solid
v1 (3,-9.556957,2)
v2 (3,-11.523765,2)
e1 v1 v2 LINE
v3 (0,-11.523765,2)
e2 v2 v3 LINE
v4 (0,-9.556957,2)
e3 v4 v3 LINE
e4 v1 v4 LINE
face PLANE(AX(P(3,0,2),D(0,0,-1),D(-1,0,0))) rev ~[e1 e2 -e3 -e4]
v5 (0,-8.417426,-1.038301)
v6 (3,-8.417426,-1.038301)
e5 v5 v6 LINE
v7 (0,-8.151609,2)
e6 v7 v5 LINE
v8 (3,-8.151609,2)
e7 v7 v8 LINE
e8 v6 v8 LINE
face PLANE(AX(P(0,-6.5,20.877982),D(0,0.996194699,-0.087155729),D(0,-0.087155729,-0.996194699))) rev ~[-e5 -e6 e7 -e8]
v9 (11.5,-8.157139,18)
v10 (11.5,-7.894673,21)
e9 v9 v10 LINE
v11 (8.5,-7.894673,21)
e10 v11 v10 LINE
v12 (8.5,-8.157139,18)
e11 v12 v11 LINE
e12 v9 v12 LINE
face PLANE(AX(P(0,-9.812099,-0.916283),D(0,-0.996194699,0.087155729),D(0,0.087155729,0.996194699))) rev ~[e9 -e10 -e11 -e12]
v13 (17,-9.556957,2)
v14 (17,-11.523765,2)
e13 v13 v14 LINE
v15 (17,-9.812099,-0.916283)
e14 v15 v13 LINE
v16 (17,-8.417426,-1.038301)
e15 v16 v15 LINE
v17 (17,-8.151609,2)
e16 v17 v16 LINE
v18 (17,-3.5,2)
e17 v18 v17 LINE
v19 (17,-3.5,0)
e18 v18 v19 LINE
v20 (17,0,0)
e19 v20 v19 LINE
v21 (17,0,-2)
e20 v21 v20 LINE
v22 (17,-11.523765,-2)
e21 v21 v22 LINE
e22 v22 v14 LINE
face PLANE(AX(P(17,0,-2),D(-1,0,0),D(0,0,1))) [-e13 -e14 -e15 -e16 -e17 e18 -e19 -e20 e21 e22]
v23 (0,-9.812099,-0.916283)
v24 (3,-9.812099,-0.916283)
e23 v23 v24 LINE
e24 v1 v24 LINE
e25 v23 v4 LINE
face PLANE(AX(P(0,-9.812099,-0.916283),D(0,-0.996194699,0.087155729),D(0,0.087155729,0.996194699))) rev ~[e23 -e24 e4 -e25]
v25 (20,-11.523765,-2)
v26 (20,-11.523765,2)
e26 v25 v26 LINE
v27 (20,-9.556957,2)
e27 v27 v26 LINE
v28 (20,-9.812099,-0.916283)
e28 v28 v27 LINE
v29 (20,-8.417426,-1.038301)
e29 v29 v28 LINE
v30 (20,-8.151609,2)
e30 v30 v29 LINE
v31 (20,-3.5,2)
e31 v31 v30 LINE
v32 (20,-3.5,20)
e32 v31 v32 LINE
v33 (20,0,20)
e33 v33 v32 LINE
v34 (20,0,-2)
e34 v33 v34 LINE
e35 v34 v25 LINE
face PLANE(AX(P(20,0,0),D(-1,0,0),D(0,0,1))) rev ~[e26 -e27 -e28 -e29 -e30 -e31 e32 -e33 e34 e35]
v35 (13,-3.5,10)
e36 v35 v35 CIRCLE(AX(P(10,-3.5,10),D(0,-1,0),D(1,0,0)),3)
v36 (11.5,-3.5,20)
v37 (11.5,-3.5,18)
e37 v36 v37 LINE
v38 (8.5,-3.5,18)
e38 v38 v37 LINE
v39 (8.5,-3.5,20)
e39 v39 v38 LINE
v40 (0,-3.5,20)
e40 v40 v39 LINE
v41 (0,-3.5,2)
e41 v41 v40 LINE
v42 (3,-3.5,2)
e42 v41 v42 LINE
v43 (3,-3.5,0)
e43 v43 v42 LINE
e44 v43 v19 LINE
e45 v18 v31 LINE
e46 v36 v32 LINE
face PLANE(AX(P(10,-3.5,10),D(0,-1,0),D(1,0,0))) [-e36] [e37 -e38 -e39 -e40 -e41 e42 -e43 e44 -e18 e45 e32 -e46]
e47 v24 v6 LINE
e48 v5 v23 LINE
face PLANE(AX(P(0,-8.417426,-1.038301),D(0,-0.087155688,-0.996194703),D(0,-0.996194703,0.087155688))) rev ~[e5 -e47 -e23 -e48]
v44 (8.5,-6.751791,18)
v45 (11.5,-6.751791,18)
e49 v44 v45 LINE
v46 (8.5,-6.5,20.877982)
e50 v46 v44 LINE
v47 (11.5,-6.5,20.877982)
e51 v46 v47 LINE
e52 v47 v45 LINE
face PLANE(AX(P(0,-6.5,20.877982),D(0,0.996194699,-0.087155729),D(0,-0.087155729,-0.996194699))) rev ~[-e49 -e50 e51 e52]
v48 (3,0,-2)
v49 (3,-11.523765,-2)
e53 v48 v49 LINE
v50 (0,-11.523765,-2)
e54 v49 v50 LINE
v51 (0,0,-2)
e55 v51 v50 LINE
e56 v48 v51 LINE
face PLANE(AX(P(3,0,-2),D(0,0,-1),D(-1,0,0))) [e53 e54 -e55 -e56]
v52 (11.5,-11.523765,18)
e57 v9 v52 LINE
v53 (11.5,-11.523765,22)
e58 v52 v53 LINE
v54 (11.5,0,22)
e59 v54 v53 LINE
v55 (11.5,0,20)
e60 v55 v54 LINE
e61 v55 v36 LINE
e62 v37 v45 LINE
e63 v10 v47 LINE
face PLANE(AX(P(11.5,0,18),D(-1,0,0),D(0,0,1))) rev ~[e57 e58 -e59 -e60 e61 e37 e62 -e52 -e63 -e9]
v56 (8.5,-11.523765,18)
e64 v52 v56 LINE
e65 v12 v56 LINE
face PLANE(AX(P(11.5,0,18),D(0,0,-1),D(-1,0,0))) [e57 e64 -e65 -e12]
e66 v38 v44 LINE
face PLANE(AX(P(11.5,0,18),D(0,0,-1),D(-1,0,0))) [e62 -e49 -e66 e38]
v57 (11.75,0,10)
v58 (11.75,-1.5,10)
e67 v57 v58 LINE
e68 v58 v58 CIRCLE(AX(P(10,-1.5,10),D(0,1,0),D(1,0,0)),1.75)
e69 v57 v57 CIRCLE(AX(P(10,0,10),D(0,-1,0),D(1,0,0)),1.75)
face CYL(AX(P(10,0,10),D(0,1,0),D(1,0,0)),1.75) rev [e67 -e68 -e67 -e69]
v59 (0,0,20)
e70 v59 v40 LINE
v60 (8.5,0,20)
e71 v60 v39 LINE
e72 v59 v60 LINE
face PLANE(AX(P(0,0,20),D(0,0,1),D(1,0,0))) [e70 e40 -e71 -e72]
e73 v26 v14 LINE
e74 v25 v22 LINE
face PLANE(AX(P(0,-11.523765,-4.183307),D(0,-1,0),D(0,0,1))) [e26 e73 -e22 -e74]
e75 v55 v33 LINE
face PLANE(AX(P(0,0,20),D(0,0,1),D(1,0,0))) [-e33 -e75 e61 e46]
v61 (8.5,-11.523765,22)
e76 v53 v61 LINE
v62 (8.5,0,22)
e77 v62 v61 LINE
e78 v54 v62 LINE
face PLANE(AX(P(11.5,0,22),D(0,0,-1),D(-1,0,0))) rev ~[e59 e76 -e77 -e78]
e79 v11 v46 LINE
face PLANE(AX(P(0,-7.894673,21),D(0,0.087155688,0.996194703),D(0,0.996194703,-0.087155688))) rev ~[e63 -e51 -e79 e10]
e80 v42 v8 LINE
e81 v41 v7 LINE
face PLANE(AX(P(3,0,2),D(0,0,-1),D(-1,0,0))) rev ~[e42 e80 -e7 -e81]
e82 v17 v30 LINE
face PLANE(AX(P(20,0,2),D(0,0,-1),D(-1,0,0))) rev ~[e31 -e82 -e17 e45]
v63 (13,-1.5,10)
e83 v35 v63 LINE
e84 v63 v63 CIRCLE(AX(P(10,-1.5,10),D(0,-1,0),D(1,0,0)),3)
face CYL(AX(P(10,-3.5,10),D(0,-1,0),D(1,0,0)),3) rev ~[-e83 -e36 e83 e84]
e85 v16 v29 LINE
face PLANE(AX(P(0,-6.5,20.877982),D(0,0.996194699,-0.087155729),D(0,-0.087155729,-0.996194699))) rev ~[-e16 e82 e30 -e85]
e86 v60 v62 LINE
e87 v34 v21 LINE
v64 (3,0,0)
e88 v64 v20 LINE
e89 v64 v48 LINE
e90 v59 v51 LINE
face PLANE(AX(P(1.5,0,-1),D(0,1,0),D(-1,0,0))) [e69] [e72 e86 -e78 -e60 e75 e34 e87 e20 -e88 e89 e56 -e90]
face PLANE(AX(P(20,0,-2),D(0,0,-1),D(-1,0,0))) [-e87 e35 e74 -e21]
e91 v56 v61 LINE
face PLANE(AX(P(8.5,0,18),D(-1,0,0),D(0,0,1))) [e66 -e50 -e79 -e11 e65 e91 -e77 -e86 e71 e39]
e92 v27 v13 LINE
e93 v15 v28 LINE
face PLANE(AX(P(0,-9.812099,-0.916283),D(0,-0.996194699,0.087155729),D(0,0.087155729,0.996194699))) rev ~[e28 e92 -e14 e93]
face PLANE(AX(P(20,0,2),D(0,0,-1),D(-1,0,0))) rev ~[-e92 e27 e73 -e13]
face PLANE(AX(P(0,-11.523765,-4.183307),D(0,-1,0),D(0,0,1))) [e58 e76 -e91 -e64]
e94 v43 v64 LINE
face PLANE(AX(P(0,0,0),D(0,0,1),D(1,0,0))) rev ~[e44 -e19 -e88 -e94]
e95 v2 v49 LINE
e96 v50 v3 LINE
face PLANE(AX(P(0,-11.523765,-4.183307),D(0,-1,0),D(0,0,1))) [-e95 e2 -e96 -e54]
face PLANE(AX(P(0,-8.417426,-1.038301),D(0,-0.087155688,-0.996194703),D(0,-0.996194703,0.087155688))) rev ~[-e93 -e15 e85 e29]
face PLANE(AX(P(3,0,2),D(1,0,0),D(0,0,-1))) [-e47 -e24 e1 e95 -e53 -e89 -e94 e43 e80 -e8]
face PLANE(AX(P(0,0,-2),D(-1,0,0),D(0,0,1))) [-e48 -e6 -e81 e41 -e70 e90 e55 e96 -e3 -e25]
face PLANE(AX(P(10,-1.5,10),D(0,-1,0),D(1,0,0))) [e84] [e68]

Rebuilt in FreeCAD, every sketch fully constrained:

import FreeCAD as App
import Part
import Sketcher
Q = App.Units.Quantity


def add_polygon(sketch, points):
    """Adds a closed chain of lines whose ends are joined by coincident constraints."""
    first, n = sketch.GeometryCount, len(points)
    for a, b in zip(points, points[1:] + points[:1]):
        sketch.addGeometry(Part.LineSegment(App.Vector(*a, 0), App.Vector(*b, 0)), False)
    for i in range(n):
        sketch.addConstraint(Sketcher.Constraint("Coincident", first + i, 2, first + (i + 1) % n, 1))

doc = App.newDocument("Part")
body = doc.addObject("PartDesign::Body", "Body")

# Sketch on XZ plane
sketch1 = body.newObject("Sketcher::SketchObject", "Sketch")
sketch1.AttachmentSupport = (doc.getObject("XZ_Plane"), [""])
sketch1.MapMode = "FlatFace"
add_polygon(sketch1, [(0, 20), (0, 0), (20, 0), (20, 20)])  # lines 0-3
sketch1.addGeometry(Part.Circle(App.Vector(10, 10, 0), App.Vector(0, 0, 1), 1.8), False)  # 4
sketch1.addConstraint(Sketcher.Constraint("Vertical", 0))
sketch1.addConstraint(Sketcher.Constraint("Horizontal", 1))
sketch1.addConstraint(Sketcher.Constraint("Vertical", 2))
sketch1.addConstraint(Sketcher.Constraint("Horizontal", 3))
sketch1.addConstraint(Sketcher.Constraint("Coincident", 0, 2, -1, 1))
sketch1.addConstraint(Sketcher.Constraint("Equal", 3, 0))
sketch1.addConstraint(Sketcher.Constraint("Diameter", 4, Q("3.5 mm")))
sketch1.addConstraint(Sketcher.Constraint("DistanceX", 1, 1, 1, 2, Q("20 mm")))
sketch1.addConstraint(Sketcher.Constraint("DistanceX", -1, 1, 4, 3, Q("10 mm")))
sketch1.addConstraint(Sketcher.Constraint("DistanceY", -1, 1, 4, 3, Q("10 mm")))
pad1 = body.newObject("PartDesign::Pad", "Pad")
pad1.Profile = sketch1
pad1.Length = 3.5

# Sketch on XZ plane
sketch2 = body.newObject("Sketcher::SketchObject", "Sketch001")
sketch2.AttachmentSupport = (doc.getObject("XZ_Plane"), [""])
sketch2.MapMode = "FlatFace"
sketch2.AttachmentOffset = App.Placement(App.Vector(0, 0, 3.5), App.Rotation())
sketch2.addGeometry(Part.Circle(App.Vector(10, 10, 0), App.Vector(0, 0, 1), 3), False)
sketch2.addConstraint(Sketcher.Constraint("Diameter", 0, Q("6 mm")))
sketch2.addConstraint(Sketcher.Constraint("DistanceX", -1, 1, 0, 3, Q("10 mm")))
sketch2.addConstraint(Sketcher.Constraint("DistanceY", -1, 1, 0, 3, Q("10 mm")))
pocket1 = body.newObject("PartDesign::Pocket", "Pocket")
pocket1.Profile = sketch2
pocket1.Length = 2

# Sketch on XZ plane
sketch3 = body.newObject("Sketcher::SketchObject", "Sketch002")
sketch3.AttachmentSupport = (doc.getObject("XZ_Plane"), [""])
sketch3.MapMode = "FlatFace"
add_polygon(sketch3, [(3, -2), (0, -2), (0, 2), (3, 2)])  # lines 0-3
add_polygon(sketch3, [(11.5, 22), (11.5, 18), (8.5, 18), (8.5, 22)])  # lines 4-7
add_polygon(sketch3, [(20, 2), (20, -2), (17, -2), (17, 2)])  # lines 8-11
sketch3.addConstraint(Sketcher.Constraint("Horizontal", 0))
sketch3.addConstraint(Sketcher.Constraint("Vertical", 1))
sketch3.addConstraint(Sketcher.Constraint("Horizontal", 2))
sketch3.addConstraint(Sketcher.Constraint("Vertical", 3))
sketch3.addConstraint(Sketcher.Constraint("Vertical", 4))
sketch3.addConstraint(Sketcher.Constraint("Horizontal", 5))
sketch3.addConstraint(Sketcher.Constraint("Vertical", 6))
sketch3.addConstraint(Sketcher.Constraint("Horizontal", 7))
sketch3.addConstraint(Sketcher.Constraint("Vertical", 8))
sketch3.addConstraint(Sketcher.Constraint("Horizontal", 9))
sketch3.addConstraint(Sketcher.Constraint("Vertical", 10))
sketch3.addConstraint(Sketcher.Constraint("Horizontal", 11))
sketch3.addConstraint(Sketcher.Constraint("Symmetric", 0, 2, 1, 2, -1, 1))
sketch3.addConstraint(Sketcher.Constraint("Horizontal", 3, 2, 8, 2))
sketch3.addConstraint(Sketcher.Constraint("Horizontal", 2, 2, 10, 2))
sketch3.addConstraint(Sketcher.Constraint("Equal", 2, 5))
sketch3.addConstraint(Sketcher.Constraint("Equal", 7, 9))
sketch3.addConstraint(Sketcher.Constraint("Equal", 3, 4))
sketch3.addConstraint(Sketcher.Constraint("DistanceX", 0, 2, 0, 1, Q("3 mm")))
sketch3.addConstraint(Sketcher.Constraint("DistanceY", 1, 1, 1, 2, Q("4 mm")))
sketch3.addConstraint(Sketcher.Constraint("DistanceY", -1, 1, 4, 2, Q("18 mm")))
sketch3.addConstraint(Sketcher.Constraint("DistanceX", -1, 1, 8, 2, Q("20 mm")))
sketch3.addConstraint(Sketcher.Constraint("DistanceX", -1, 1, 4, 2, Q("11.5 mm")))
pad2 = body.newObject("PartDesign::Pad", "Pad001")
pad2.Profile = sketch3
pad2.Length = 15

# Sketch on YZ plane
sketch4 = body.newObject("Sketcher::SketchObject", "Sketch003")
sketch4.AttachmentSupport = (doc.getObject("YZ_Plane"), [""])
sketch4.MapMode = "FlatFace"
add_polygon(sketch4, [(-7.9, 21), (-6.5, 20.9), (-8.4, -1), (-9.8, -0.9)])  # lines 0-3
add_polygon(sketch4, [(-11.5, 23.8), (-11.5, -4.2), (-16.6, -4.2), (-16.6, 23.8)])  # lines 4-7
sketch4.addConstraint(Sketcher.Constraint("Vertical", 4))
sketch4.addConstraint(Sketcher.Constraint("Horizontal", 5))
sketch4.addConstraint(Sketcher.Constraint("Vertical", 6))
sketch4.addConstraint(Sketcher.Constraint("Horizontal", 7))
sketch4.addConstraint(Sketcher.Constraint("Perpendicular", 0, 1))
sketch4.addConstraint(Sketcher.Constraint("Perpendicular", 1, 2))
sketch4.addConstraint(Sketcher.Constraint("Perpendicular", 2, 3))
sketch4.addConstraint(Sketcher.Constraint("Angle", 0, Q("-4.999997 deg")))
sketch4.addConstraint(Sketcher.Constraint("Distance", 1, Q("22 mm")))
sketch4.addConstraint(Sketcher.Constraint("DistanceY", -1, 1, 3, 2, Q("21 mm")))
sketch4.addConstraint(Sketcher.Constraint("Distance", 0, Q("1.4 mm")))
sketch4.addConstraint(Sketcher.Constraint("DistanceX", 0, 2, -1, 1, Q("6.5 mm")))
sketch4.addConstraint(Sketcher.Constraint("DistanceY", 4, 2, 4, 1, Q("27.98892 mm")))
sketch4.addConstraint(Sketcher.Constraint("DistanceX", 5, 2, 5, 1, Q("5.121377 mm")))
sketch4.addConstraint(Sketcher.Constraint("DistanceX", 4, 2, 1, 2, Q("3.106339 mm")))
sketch4.addConstraint(Sketcher.Constraint("DistanceY", 4, 2, 0, 2, Q("25.061289 mm")))
pocket2 = body.newObject("PartDesign::Pocket", "Pocket001")
pocket2.Profile = sketch4
pocket2.Length = 25
pocket2.Reversed = True

doc.recompute()
